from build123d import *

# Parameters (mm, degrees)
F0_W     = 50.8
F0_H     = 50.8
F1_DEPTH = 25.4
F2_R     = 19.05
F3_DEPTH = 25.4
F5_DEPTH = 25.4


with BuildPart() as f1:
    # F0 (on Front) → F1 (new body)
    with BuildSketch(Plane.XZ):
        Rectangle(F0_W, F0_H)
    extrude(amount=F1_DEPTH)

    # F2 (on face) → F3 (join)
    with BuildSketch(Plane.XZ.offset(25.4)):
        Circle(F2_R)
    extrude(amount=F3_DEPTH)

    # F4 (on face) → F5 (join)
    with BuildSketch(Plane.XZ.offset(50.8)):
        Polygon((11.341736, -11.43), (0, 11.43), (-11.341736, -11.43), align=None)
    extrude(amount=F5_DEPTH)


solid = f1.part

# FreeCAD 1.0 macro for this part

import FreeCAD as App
import Part
import Sketcher
from FreeCAD import Vector
Q = App.Units.Quantity

doc = App.newDocument("Part")
body = doc.addObject("PartDesign::Body", "Body")

# Sketch on XZ plane
sketch1 = body.newObject("Sketcher::SketchObject", "Sketch")
sketch1.AttachmentSupport = (doc.getObject("XZ_Plane"), [""])
sketch1.MapMode = "FlatFace"
sketch1.addGeometry([
    Part.LineSegment(Vector(-25.4, 25.4, 0), Vector(-25.4, -25.4, 0)),
    Part.LineSegment(Vector(-25.4, -25.4, 0), Vector(25.4, -25.4, 0)),
    Part.LineSegment(Vector(25.4, -25.4, 0), Vector(25.4, 25.4, 0)),
    Part.LineSegment(Vector(25.4, 25.4, 0), Vector(-25.4, 25.4, 0)),
], False)
sketch1.addConstraint([
    Sketcher.Constraint("Coincident", 0, 2, 1, 1),
    Sketcher.Constraint("Coincident", 1, 2, 2, 1),
    Sketcher.Constraint("Coincident", 2, 2, 3, 1),
    Sketcher.Constraint("Coincident", 3, 2, 0, 1),
    Sketcher.Constraint("Vertical", 0),
    Sketcher.Constraint("Horizontal", 1),
    Sketcher.Constraint("Vertical", 2),
    Sketcher.Constraint("Horizontal", 3),
    Sketcher.Constraint("Symmetric", 0, 2, 2, 2, -1, 1),
    Sketcher.Constraint("Equal", 3, 0),
    Sketcher.Constraint("DistanceX", 1, 1, 1, 2, Q("2 in")),
])
pad1 = body.newObject("PartDesign::Pad", "Pad")
pad1.Profile = sketch1
pad1.Length = Q("1 in")

# Sketch on XZ plane
sketch2 = body.newObject("Sketcher::SketchObject", "Sketch001")
sketch2.AttachmentSupport = (doc.getObject("XZ_Plane"), [""])
sketch2.MapMode = "FlatFace"
sketch2.AttachmentOffset = App.Placement(Vector(0, 0, 1 * 25.4), App.Rotation())
sketch2.addGeometry(Part.Circle(Vector(0, 0, 0), Vector(0, 0, 1), 19.05), False)
sketch2.addConstraint([
    Sketcher.Constraint("Coincident", 0, 3, -1, 1),
    Sketcher.Constraint("Diameter", 0, Q("1.5 in")),
])
pad2 = body.newObject("PartDesign::Pad", "Pad001")
pad2.Profile = sketch2
pad2.Length = Q("1 in")

# Sketch on XZ plane
sketch3 = body.newObject("Sketcher::SketchObject", "Sketch002")
sketch3.AttachmentSupport = (doc.getObject("XZ_Plane"), [""])
sketch3.MapMode = "FlatFace"
sketch3.AttachmentOffset = App.Placement(Vector(0, 0, 2 * 25.4), App.Rotation())
sketch3.addGeometry([
    Part.LineSegment(Vector(11.341736, -11.43, 0), Vector(0, 11.43, 0)),
    Part.LineSegment(Vector(0, 11.43, 0), Vector(-11.341736, -11.43, 0)),
    Part.LineSegment(Vector(-11.341736, -11.43, 0), Vector(11.341736, -11.43, 0)),
], False)
sketch3.addConstraint([
    Sketcher.Constraint("Coincident", 0, 2, 1, 1),
    Sketcher.Constraint("Coincident", 1, 2, 2, 1),
    Sketcher.Constraint("Coincident", 2, 2, 0, 1),
    Sketcher.Constraint("Horizontal", 2),
    Sketcher.Constraint("PointOnObject", 0, 2, -2),
    Sketcher.Constraint("Equal", 0, 1),
    Sketcher.Constraint("DistanceY", 1, 2, 0, 2, Q("0.9 in")),
    Sketcher.Constraint("DistanceY", -1, 1, 0, 2, Q("0.45 in")),
    Sketcher.Constraint("DistanceX", 2, 1, 2, 2, Q("22.683472 mm")),
])
pad3 = body.newObject("PartDesign::Pad", "Pad002")
pad3.Profile = sketch3
pad3.Length = Q("1 in")

doc.recompute()
